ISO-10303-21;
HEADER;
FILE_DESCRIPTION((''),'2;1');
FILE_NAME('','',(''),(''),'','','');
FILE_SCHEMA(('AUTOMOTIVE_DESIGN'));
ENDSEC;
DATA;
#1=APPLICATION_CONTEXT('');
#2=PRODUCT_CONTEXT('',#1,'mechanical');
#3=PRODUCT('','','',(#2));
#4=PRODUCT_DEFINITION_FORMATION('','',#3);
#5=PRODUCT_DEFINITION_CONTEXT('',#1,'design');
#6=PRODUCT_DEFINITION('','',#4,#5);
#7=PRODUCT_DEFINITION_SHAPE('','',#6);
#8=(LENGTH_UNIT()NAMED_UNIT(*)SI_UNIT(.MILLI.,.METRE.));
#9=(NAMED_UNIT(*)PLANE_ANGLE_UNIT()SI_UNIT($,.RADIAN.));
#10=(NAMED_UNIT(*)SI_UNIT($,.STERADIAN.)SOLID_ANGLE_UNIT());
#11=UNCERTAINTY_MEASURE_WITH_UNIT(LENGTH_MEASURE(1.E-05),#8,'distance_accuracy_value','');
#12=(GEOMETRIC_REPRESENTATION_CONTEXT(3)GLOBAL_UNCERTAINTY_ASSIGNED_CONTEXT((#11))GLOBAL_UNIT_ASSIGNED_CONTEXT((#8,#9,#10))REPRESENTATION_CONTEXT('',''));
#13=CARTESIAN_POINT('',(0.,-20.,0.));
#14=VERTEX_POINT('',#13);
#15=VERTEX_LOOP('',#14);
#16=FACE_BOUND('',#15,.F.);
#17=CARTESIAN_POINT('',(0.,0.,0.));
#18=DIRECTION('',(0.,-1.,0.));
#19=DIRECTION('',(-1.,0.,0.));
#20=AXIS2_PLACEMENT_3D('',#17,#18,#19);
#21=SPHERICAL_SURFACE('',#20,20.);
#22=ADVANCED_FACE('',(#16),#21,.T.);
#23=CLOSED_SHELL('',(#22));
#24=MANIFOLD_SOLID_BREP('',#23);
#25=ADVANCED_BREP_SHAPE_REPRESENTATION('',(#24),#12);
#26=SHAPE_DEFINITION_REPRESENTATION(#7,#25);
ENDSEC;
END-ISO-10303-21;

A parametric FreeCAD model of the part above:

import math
import FreeCAD as App
import Part
import Sketcher
Q = App.Units.Quantity

doc = App.newDocument("Part")
params = doc.addObject("Spreadsheet::Sheet", "Params")
for row, (alias, value) in enumerate([
    ("sketch1_radius", "20 mm"),
    ("revolution_angle", "360 deg"),
], start=1):
    params.set(f"A{row}", alias)
    params.set(f"B{row}", "=" + value)
    params.setAlias(f"B{row}", alias)

body = doc.addObject("PartDesign::Body", "Body")

sketch1 = body.newObject("Sketcher::SketchObject", "Sketch")
sketch1.AttachmentSupport = (doc.getObject("XY_Plane"), [""])
sketch1.MapMode = "FlatFace"
sketch1.addGeometry([
    Part.LineSegment(App.Vector(0, -20, 0), App.Vector(0, 20, 0)),
    Part.ArcOfCircle(Part.Circle(App.Vector(0, 0, 0), App.Vector(0, 0, 1), 20), math.radians(90), math.radians(270)),
], False)
sketch1.addConstraint([
    Sketcher.Constraint("Coincident", 0, 1, 1, 2),
    Sketcher.Constraint("Coincident", 1, 1, 0, 2),
    Sketcher.Constraint("Vertical", 0),
    Sketcher.Constraint("Coincident", 1, 3, -1, 1),
    Sketcher.Constraint("PointOnObject", 0, 1, -2),
    Sketcher.Constraint("Radius", 1, Q("20 mm")),
])
sketch1.setExpression("Constraints[5]", "Params.sketch1_radius")
revolution = body.newObject("PartDesign::Revolution", "Revolution")
revolution.Profile = sketch1
revolution.ReferenceAxis = (sketch1, ["V_Axis"])
revolution.setExpression("Angle", "Params.revolution_angle")

doc.recompute()
